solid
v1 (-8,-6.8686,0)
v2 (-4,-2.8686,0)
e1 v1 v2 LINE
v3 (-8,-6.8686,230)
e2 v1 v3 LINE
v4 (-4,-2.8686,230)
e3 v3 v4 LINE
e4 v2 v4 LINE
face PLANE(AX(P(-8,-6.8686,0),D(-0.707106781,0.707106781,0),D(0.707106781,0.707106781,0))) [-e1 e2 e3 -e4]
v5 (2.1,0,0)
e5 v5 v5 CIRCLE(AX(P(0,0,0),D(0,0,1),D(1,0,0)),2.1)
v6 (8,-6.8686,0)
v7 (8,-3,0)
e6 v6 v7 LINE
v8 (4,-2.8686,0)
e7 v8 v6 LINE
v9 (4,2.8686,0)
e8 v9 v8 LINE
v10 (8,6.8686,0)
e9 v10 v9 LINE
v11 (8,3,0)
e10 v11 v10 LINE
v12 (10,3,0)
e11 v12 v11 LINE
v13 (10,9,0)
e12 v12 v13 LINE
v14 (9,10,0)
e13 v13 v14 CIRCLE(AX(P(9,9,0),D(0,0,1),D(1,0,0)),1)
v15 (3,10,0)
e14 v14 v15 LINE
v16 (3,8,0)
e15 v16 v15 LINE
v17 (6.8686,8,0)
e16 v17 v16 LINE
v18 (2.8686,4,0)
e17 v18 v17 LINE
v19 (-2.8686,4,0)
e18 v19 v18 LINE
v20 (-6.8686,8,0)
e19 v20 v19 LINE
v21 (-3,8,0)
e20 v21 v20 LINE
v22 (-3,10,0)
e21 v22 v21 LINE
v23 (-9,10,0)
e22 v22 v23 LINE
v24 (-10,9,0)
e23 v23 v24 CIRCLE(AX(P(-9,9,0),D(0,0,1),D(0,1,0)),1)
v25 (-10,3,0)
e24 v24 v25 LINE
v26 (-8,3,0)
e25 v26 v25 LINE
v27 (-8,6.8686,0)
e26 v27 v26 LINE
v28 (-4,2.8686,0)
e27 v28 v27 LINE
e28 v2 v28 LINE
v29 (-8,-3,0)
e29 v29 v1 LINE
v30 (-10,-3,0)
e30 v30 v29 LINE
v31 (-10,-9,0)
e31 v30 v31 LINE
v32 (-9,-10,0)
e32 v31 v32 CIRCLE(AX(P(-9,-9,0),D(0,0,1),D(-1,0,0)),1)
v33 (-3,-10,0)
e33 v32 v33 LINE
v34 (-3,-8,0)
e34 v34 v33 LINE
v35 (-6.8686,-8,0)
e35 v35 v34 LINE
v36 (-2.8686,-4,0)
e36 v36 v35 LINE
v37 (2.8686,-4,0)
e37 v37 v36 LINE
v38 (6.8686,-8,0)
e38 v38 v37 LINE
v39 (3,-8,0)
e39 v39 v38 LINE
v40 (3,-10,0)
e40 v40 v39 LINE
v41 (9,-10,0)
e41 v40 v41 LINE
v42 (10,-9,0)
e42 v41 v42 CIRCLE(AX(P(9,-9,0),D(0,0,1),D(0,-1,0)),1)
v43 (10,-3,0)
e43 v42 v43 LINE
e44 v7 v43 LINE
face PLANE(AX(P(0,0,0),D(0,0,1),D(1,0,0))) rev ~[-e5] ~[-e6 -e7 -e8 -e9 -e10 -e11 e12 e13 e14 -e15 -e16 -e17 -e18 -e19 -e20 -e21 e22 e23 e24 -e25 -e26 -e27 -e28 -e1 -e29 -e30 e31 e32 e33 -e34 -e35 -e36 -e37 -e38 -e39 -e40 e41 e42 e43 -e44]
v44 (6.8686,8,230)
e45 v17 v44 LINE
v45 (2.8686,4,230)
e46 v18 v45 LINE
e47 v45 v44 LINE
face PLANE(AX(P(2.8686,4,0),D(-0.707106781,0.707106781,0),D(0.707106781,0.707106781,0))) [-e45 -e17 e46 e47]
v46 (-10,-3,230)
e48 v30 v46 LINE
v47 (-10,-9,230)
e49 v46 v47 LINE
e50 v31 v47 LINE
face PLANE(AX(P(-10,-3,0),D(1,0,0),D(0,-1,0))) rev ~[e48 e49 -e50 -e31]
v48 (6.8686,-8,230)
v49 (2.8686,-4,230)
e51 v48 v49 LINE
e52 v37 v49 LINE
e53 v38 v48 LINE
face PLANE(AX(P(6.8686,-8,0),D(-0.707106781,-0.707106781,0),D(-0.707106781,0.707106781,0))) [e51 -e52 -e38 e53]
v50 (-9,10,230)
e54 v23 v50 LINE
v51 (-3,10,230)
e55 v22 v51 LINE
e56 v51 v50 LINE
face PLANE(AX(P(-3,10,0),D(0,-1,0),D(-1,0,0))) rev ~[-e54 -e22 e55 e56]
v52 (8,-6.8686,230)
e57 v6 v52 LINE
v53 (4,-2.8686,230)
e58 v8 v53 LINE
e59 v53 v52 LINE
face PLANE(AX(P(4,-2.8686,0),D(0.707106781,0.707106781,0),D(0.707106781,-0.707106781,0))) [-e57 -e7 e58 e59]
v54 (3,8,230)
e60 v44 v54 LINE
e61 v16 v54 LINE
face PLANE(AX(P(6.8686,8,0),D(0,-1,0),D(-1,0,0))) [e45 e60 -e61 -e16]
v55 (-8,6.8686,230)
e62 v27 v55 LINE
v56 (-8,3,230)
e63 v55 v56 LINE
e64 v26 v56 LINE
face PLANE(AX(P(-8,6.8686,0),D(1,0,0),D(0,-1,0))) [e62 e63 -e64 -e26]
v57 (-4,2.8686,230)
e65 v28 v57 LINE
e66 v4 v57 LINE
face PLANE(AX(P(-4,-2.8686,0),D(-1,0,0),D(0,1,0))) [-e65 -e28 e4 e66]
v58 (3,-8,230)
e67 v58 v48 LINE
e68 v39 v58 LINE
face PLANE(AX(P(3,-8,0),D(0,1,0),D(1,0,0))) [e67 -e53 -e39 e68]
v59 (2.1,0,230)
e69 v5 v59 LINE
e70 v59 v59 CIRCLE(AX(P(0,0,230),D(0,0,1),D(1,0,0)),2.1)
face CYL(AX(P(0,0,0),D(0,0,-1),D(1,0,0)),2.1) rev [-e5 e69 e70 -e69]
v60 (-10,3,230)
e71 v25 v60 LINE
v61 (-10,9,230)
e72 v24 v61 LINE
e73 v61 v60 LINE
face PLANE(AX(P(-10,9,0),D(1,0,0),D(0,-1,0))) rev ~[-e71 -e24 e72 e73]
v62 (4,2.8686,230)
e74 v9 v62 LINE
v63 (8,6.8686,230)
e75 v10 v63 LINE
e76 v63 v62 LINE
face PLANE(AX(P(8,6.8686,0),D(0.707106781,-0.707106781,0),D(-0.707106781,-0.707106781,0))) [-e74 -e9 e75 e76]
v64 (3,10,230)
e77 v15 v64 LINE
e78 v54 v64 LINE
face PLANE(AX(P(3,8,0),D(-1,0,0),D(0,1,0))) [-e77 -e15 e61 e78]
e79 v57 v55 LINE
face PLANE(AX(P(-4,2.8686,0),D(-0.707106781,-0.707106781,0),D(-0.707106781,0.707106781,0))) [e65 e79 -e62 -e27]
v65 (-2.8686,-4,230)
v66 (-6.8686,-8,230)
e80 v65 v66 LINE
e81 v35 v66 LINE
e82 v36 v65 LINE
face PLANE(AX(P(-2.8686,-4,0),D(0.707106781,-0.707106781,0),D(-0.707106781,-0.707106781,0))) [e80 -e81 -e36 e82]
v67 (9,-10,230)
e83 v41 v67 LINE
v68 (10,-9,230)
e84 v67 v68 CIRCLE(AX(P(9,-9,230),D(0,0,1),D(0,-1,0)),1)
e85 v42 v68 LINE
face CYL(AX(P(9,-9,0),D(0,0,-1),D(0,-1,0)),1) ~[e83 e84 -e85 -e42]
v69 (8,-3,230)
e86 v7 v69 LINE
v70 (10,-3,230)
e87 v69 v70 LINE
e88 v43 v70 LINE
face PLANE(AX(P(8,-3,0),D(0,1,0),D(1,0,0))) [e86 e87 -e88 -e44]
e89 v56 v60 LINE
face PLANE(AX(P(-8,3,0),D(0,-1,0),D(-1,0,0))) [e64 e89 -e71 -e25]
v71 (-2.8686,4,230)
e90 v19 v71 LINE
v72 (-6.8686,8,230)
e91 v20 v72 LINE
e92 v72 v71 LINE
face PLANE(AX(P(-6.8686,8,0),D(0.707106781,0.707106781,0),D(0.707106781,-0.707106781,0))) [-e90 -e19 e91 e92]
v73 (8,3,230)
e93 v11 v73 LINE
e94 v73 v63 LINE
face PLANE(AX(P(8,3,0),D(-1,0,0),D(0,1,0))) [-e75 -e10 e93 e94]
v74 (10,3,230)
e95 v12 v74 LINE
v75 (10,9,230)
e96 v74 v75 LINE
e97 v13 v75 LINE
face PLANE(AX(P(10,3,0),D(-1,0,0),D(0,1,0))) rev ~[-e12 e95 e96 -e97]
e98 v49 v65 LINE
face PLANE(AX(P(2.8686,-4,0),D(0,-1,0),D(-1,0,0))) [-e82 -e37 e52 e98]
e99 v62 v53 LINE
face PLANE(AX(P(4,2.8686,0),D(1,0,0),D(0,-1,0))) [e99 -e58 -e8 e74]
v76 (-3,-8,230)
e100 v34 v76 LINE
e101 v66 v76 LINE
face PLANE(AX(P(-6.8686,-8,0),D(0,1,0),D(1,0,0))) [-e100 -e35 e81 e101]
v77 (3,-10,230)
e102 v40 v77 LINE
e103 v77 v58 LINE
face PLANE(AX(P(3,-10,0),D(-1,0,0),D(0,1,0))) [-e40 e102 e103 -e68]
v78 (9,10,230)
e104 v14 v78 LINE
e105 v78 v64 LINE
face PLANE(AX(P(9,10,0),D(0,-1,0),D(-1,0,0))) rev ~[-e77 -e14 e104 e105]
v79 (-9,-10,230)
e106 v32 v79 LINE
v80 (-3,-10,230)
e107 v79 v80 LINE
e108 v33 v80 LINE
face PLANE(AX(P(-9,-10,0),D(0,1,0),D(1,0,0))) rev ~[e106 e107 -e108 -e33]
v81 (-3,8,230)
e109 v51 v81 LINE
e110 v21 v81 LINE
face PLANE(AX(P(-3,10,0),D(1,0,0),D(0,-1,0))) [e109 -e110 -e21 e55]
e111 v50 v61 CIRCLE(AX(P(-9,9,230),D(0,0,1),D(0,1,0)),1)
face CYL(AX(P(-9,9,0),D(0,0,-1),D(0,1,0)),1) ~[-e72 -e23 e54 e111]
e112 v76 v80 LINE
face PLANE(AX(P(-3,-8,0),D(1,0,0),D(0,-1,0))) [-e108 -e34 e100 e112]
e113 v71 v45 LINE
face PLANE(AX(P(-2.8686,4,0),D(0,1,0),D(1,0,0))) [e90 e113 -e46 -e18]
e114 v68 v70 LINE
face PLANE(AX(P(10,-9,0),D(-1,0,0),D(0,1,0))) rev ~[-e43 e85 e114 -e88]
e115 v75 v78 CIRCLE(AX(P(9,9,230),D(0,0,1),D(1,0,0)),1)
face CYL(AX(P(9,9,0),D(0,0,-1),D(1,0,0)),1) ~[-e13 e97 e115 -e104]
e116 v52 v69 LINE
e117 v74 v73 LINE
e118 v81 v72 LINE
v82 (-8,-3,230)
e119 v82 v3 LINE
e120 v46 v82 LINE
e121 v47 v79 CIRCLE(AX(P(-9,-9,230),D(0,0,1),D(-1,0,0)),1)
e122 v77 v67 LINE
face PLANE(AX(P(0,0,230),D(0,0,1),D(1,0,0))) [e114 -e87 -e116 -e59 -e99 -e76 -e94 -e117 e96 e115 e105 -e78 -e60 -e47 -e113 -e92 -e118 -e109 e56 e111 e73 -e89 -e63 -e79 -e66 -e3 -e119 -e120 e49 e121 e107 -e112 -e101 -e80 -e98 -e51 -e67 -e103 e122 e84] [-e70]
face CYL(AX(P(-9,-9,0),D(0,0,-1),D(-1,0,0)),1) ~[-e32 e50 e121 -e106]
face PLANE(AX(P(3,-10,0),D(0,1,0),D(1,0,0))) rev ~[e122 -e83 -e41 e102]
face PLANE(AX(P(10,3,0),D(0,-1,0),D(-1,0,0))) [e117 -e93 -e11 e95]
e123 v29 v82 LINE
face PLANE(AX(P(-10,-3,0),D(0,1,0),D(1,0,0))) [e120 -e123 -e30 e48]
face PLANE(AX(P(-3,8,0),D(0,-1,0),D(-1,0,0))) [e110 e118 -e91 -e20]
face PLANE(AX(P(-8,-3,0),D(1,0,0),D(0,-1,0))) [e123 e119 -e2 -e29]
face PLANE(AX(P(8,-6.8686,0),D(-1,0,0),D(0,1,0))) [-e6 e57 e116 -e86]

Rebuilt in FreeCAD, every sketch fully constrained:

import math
import FreeCAD as App
import Part
import Sketcher
from FreeCAD import Vector

doc = App.newDocument("Part")
body = doc.addObject("PartDesign::Body", "Body")

# Sketch on XY plane
sketch1 = body.newObject("Sketcher::SketchObject", "Sketch")
sketch1.AttachmentSupport = (doc.getObject("XY_Plane"), [""])
sketch1.MapMode = "FlatFace"
sketch1.addGeometry(Part.LineSegment(Vector(8, 3, 0), Vector(10, 3, 0)), False)
sketch1.addGeometry(Part.LineSegment(Vector(10, 3, 0), Vector(10, 9, 0)), False)
sketch1.addGeometry(Part.ArcOfCircle(Part.Circle(Vector(9, 9, 0), Vector(0, 0, 1), 1), math.radians(0), math.radians(90)), False)
sketch1.addGeometry(Part.LineSegment(Vector(9, 10, 0), Vector(3, 10, 0)), False)
sketch1.addGeometry(Part.LineSegment(Vector(3, 10, 0), Vector(3, 8, 0)), False)
sketch1.addGeometry(Part.LineSegment(Vector(3, 8, 0), Vector(6.8686, 8, 0)), False)
sketch1.addGeometry(Part.LineSegment(Vector(6.8686, 8, 0), Vector(2.8686, 4, 0)), False)
sketch1.addGeometry(Part.LineSegment(Vector(2.8686, 4, 0), Vector(-2.8686, 4, 0)), False)
sketch1.addGeometry(Part.LineSegment(Vector(-2.8686, 4, 0), Vector(-6.8686, 8, 0)), False)
sketch1.addGeometry(Part.LineSegment(Vector(-6.8686, 8, 0), Vector(-3, 8, 0)), False)
sketch1.addGeometry(Part.LineSegment(Vector(-3, 8, 0), Vector(-3, 10, 0)), False)
sketch1.addGeometry(Part.LineSegment(Vector(-3, 10, 0), Vector(-9, 10, 0)), False)
sketch1.addGeometry(Part.ArcOfCircle(Part.Circle(Vector(-9, 9, 0), Vector(0, 0, 1), 1), math.radians(90), math.radians(180)), False)
sketch1.addGeometry(Part.LineSegment(Vector(-10, 9, 0), Vector(-10, 3, 0)), False)
sketch1.addGeometry(Part.LineSegment(Vector(-10, 3, 0), Vector(-8, 3, 0)), False)
sketch1.addGeometry(Part.LineSegment(Vector(-8, 3, 0), Vector(-8, 6.8686, 0)), False)
sketch1.addGeometry(Part.LineSegment(Vector(-8, 6.8686, 0), Vector(-4, 2.8686, 0)), False)
sketch1.addGeometry(Part.LineSegment(Vector(-4, 2.8686, 0), Vector(-4, -2.8686, 0)), False)
sketch1.addGeometry(Part.LineSegment(Vector(-4, -2.8686, 0), Vector(-8, -6.8686, 0)), False)
sketch1.addGeometry(Part.LineSegment(Vector(-8, -6.8686, 0), Vector(-8, -3, 0)), False)
sketch1.addGeometry(Part.LineSegment(Vector(-8, -3, 0), Vector(-10, -3, 0)), False)
sketch1.addGeometry(Part.LineSegment(Vector(-10, -3, 0), Vector(-10, -9, 0)), False)
sketch1.addGeometry(Part.ArcOfCircle(Part.Circle(Vector(-9, -9, 0), Vector(0, 0, 1), 1), math.radians(180), math.radians(270)), False)
sketch1.addGeometry(Part.LineSegment(Vector(-9, -10, 0), Vector(-3, -10, 0)), False)
sketch1.addGeometry(Part.LineSegment(Vector(-3, -10, 0), Vector(-3, -8, 0)), False)
sketch1.addGeometry(Part.LineSegment(Vector(-3, -8, 0), Vector(-6.8686, -8, 0)), False)
sketch1.addGeometry(Part.LineSegment(Vector(-6.8686, -8, 0), Vector(-2.8686, -4, 0)), False)
sketch1.addGeometry(Part.LineSegment(Vector(-2.8686, -4, 0), Vector(2.8686, -4, 0)), False)
sketch1.addGeometry(Part.LineSegment(Vector(2.8686, -4, 0), Vector(6.8686, -8, 0)), False)
sketch1.addGeometry(Part.LineSegment(Vector(6.8686, -8, 0), Vector(3, -8, 0)), False)
sketch1.addGeometry(Part.LineSegment(Vector(3, -8, 0), Vector(3, -10, 0)), False)
sketch1.addGeometry(Part.LineSegment(Vector(3, -10, 0), Vector(9, -10, 0)), False)
sketch1.addGeometry(Part.ArcOfCircle(Part.Circle(Vector(9, -9, 0), Vector(0, 0, 1), 1), math.radians(-90), math.radians(0)), False)
sketch1.addGeometry(Part.LineSegment(Vector(10, -9, 0), Vector(10, -3, 0)), False)
sketch1.addGeometry(Part.LineSegment(Vector(10, -3, 0), Vector(8, -3, 0)), False)
sketch1.addGeometry(Part.LineSegment(Vector(8, -3, 0), Vector(8, -6.8686, 0)), False)
sketch1.addGeometry(Part.LineSegment(Vector(8, -6.8686, 0), Vector(4, -2.8686, 0)), False)
sketch1.addGeometry(Part.LineSegment(Vector(4, -2.8686, 0), Vector(4, 2.8686, 0)), False)
sketch1.addGeometry(Part.LineSegment(Vector(4, 2.8686, 0), Vector(8, 6.8686, 0)), False)
sketch1.addGeometry(Part.LineSegment(Vector(8, 6.8686, 0), Vector(8, 3, 0)), False)
sketch1.addGeometry(Part.Circle(Vector(0, 0, 0), Vector(0, 0, 1), 2.1), False)
sketch1.addConstraint(Sketcher.Constraint("Coincident", 0, 2, 1, 1))
sketch1.addConstraint(Sketcher.Constraint("Tangent", 1, 2, 2, 1))
sketch1.addConstraint(Sketcher.Constraint("Tangent", 2, 2, 3, 1))
sketch1.addConstraint(Sketcher.Constraint("Coincident", 3, 2, 4, 1))
sketch1.addConstraint(Sketcher.Constraint("Coincident", 4, 2, 5, 1))
sketch1.addConstraint(Sketcher.Constraint("Coincident", 5, 2, 6, 1))
sketch1.addConstraint(Sketcher.Constraint("Coincident", 6, 2, 7, 1))
sketch1.addConstraint(Sketcher.Constraint("Coincident", 7, 2, 8, 1))
sketch1.addConstraint(Sketcher.Constraint("Coincident", 8, 2, 9, 1))
sketch1.addConstraint(Sketcher.Constraint("Coincident", 9, 2, 10, 1))
sketch1.addConstraint(Sketcher.Constraint("Coincident", 10, 2, 11, 1))
sketch1.addConstraint(Sketcher.Constraint("Tangent", 11, 2, 12, 1))
sketch1.addConstraint(Sketcher.Constraint("Tangent", 12, 2, 13, 1))
sketch1.addConstraint(Sketcher.Constraint("Coincident", 13, 2, 14, 1))
sketch1.addConstraint(Sketcher.Constraint("Coincident", 14, 2, 15, 1))
sketch1.addConstraint(Sketcher.Constraint("Coincident", 15, 2, 16, 1))
sketch1.addConstraint(Sketcher.Constraint("Coincident", 16, 2, 17, 1))
sketch1.addConstraint(Sketcher.Constraint("Coincident", 17, 2, 18, 1))
sketch1.addConstraint(Sketcher.Constraint("Coincident", 18, 2, 19, 1))
sketch1.addConstraint(Sketcher.Constraint("Coincident", 19, 2, 20, 1))
sketch1.addConstraint(Sketcher.Constraint("Coincident", 20, 2, 21, 1))
sketch1.addConstraint(Sketcher.Constraint("Tangent", 21, 2, 22, 1))
sketch1.addConstraint(Sketcher.Constraint("Tangent", 22, 2, 23, 1))
sketch1.addConstraint(Sketcher.Constraint("Coincident", 23, 2, 24, 1))
sketch1.addConstraint(Sketcher.Constraint("Coincident", 24, 2, 25, 1))
sketch1.addConstraint(Sketcher.Constraint("Coincident", 25, 2, 26, 1))
sketch1.addConstraint(Sketcher.Constraint("Coincident", 26, 2, 27, 1))
sketch1.addConstraint(Sketcher.Constraint("Coincident", 27, 2, 28, 1))
sketch1.addConstraint(Sketcher.Constraint("Coincident", 28, 2, 29, 1))
sketch1.addConstraint(Sketcher.Constraint("Coincident", 29, 2, 30, 1))
sketch1.addConstraint(Sketcher.Constraint("Coincident", 30, 2, 31, 1))
sketch1.addConstraint(Sketcher.Constraint("Tangent", 31, 2, 32, 1))
sketch1.addConstraint(Sketcher.Constraint("Tangent", 32, 2, 33, 1))
sketch1.addConstraint(Sketcher.Constraint("Coincident", 33, 2, 34, 1))
sketch1.addConstraint(Sketcher.Constraint("Coincident", 34, 2, 35, 1))
sketch1.addConstraint(Sketcher.Constraint("Coincident", 35, 2, 36, 1))
sketch1.addConstraint(Sketcher.Constraint("Coincident", 36, 2, 37, 1))
sketch1.addConstraint(Sketcher.Constraint("Coincident", 37, 2, 38, 1))
sketch1.addConstraint(Sketcher.Constraint("Coincident", 38, 2, 39, 1))
sketch1.addConstraint(Sketcher.Constraint("Coincident", 39, 2, 0, 1))
sketch1.addConstraint(Sketcher.Constraint("Horizontal", 0))
sketch1.addConstraint(Sketcher.Constraint("Vertical", 1))
sketch1.addConstraint(Sketcher.Constraint("Horizontal", 3))
sketch1.addConstraint(Sketcher.Constraint("Vertical", 4))
sketch1.addConstraint(Sketcher.Constraint("Horizontal", 5))
sketch1.addConstraint(Sketcher.Constraint("Horizontal", 7))
sketch1.addConstraint(Sketcher.Constraint("Horizontal", 9))
sketch1.addConstraint(Sketcher.Constraint("Vertical", 10))
sketch1.addConstraint(Sketcher.Constraint("Horizontal", 11))
sketch1.addConstraint(Sketcher.Constraint("Vertical", 13))
sketch1.addConstraint(Sketcher.Constraint("Horizontal", 14))
sketch1.addConstraint(Sketcher.Constraint("Vertical", 15))
sketch1.addConstraint(Sketcher.Constraint("Vertical", 17))
sketch1.addConstraint(Sketcher.Constraint("Vertical", 19))
sketch1.addConstraint(Sketcher.Constraint("Horizontal", 20))
sketch1.addConstraint(Sketcher.Constraint("Vertical", 21))
sketch1.addConstraint(Sketcher.Constraint("Horizontal", 23))
sketch1.addConstraint(Sketcher.Constraint("Vertical", 24))
sketch1.addConstraint(Sketcher.Constraint("Horizontal", 25))
sketch1.addConstraint(Sketcher.Constraint("Horizontal", 27))
sketch1.addConstraint(Sketcher.Constraint("Horizontal", 29))
sketch1.addConstraint(Sketcher.Constraint("Vertical", 30))
sketch1.addConstraint(Sketcher.Constraint("Horizontal", 31))
sketch1.addConstraint(Sketcher.Constraint("Vertical", 33))
sketch1.addConstraint(Sketcher.Constraint("Horizontal", 34))
sketch1.addConstraint(Sketcher.Constraint("Vertical", 35))
sketch1.addConstraint(Sketcher.Constraint("Vertical", 37))
sketch1.addConstraint(Sketcher.Constraint("Vertical", 39))
sketch1.addConstraint(Sketcher.Constraint("Coincident", 40, 3, -1, 1))
sketch1.addConstraint(Sketcher.Constraint("Equal", 2, 12))
sketch1.addConstraint(Sketcher.Constraint("Equal", 12, 22))
sketch1.addConstraint(Sketcher.Constraint("Equal", 22, 32))
sketch1.addConstraint(Sketcher.Constraint("Symmetric", 2, 3, 22, 3, -1, 1))
sketch1.addConstraint(Sketcher.Constraint("Symmetric", 12, 3, 32, 3, -1, 1))
sketch1.addConstraint(Sketcher.Constraint("Symmetric", 4, 2, 24, 2, -1, 1))
sketch1.addConstraint(Sketcher.Constraint("Symmetric", 6, 2, 26, 2, -1, 1))
sketch1.addConstraint(Sketcher.Constraint("Symmetric", 8, 2, 28, 2, -1, 1))
sketch1.addConstraint(Sketcher.Constraint("Symmetric", 14, 2, 34, 2, -1, 1))
sketch1.addConstraint(Sketcher.Constraint("Symmetric", 16, 2, 36, 2, -1, 1))
sketch1.addConstraint(Sketcher.Constraint("Symmetric", 18, 2, 38, 2, -1, 1))
sketch1.addConstraint(Sketcher.Constraint("Symmetric", 2, 3, 12, 3, -2))
sketch1.addConstraint(Sketcher.Constraint("Symmetric", 5, 2, 8, 2, -2))
sketch1.addConstraint(Sketcher.Constraint("Symmetric", 19, 2, 34, 2, -2))
sketch1.addConstraint(Sketcher.Constraint("Perpendicular", 6, 8))
sketch1.addConstraint(Sketcher.Constraint("Parallel", 8, 16))
sketch1.addConstraint(Sketcher.Constraint("Perpendicular", 16, 18))
sketch1.addConstraint(Sketcher.Constraint("Parallel", 18, 26))
sketch1.addConstraint(Sketcher.Constraint("Perpendicular", 26, 28))
sketch1.addConstraint(Sketcher.Constraint("Parallel", 28, 36))
sketch1.addConstraint(Sketcher.Constraint("Perpendicular", 36, 38))
sketch1.addConstraint(Sketcher.Constraint("Horizontal", 0, 2, 13, 2))
sketch1.addConstraint(Sketcher.Constraint("Horizontal", 18, 2, 35, 2))
sketch1.addConstraint(Sketcher.Constraint("Horizontal", 17, 2, 36, 2))
sketch1.addConstraint(Sketcher.Constraint("Vertical", 10, 2, 23, 2))
sketch1.addConstraint(Sketcher.Constraint("Vertical", 4, 2, 29, 2))
sketch1.addConstraint(Sketcher.Constraint("Equal", 31, 1))
sketch1.addConstraint(Sketcher.Constraint("Equal", 34, 4))
sketch1.addConstraint(Sketcher.Constraint("Equal", 29, 15))
sketch1.addConstraint(Sketcher.Constraint("Equal", 27, 17))
sketch1.addConstraint(Sketcher.Constraint("Equal", 8, 16))
sketch1.addConstraint(Sketcher.Constraint("Radius", 2, 1.0))
sketch1.addConstraint(Sketcher.Constraint("Diameter", 40, 4.2))
sketch1.addConstraint(Sketcher.Constraint("DistanceX", 0, 1, 0, 2, 2.0))
sketch1.addConstraint(Sketcher.Constraint("DistanceX", 3, 2, 3, 1, 6.0))
sketch1.addConstraint(Sketcher.Constraint("DistanceY", -1, 1, 6, 2, 4.0))
sketch1.addConstraint(Sketcher.Constraint("DistanceY", 6, 2, 4, 2, 4.0))
sketch1.addConstraint(Sketcher.Constraint("DistanceX", 5, 1, 5, 2, 3.8686))
pad1 = body.newObject("PartDesign::Pad", "Pad")
pad1.Profile = sketch1
pad1.Length = 230

doc.recompute()
